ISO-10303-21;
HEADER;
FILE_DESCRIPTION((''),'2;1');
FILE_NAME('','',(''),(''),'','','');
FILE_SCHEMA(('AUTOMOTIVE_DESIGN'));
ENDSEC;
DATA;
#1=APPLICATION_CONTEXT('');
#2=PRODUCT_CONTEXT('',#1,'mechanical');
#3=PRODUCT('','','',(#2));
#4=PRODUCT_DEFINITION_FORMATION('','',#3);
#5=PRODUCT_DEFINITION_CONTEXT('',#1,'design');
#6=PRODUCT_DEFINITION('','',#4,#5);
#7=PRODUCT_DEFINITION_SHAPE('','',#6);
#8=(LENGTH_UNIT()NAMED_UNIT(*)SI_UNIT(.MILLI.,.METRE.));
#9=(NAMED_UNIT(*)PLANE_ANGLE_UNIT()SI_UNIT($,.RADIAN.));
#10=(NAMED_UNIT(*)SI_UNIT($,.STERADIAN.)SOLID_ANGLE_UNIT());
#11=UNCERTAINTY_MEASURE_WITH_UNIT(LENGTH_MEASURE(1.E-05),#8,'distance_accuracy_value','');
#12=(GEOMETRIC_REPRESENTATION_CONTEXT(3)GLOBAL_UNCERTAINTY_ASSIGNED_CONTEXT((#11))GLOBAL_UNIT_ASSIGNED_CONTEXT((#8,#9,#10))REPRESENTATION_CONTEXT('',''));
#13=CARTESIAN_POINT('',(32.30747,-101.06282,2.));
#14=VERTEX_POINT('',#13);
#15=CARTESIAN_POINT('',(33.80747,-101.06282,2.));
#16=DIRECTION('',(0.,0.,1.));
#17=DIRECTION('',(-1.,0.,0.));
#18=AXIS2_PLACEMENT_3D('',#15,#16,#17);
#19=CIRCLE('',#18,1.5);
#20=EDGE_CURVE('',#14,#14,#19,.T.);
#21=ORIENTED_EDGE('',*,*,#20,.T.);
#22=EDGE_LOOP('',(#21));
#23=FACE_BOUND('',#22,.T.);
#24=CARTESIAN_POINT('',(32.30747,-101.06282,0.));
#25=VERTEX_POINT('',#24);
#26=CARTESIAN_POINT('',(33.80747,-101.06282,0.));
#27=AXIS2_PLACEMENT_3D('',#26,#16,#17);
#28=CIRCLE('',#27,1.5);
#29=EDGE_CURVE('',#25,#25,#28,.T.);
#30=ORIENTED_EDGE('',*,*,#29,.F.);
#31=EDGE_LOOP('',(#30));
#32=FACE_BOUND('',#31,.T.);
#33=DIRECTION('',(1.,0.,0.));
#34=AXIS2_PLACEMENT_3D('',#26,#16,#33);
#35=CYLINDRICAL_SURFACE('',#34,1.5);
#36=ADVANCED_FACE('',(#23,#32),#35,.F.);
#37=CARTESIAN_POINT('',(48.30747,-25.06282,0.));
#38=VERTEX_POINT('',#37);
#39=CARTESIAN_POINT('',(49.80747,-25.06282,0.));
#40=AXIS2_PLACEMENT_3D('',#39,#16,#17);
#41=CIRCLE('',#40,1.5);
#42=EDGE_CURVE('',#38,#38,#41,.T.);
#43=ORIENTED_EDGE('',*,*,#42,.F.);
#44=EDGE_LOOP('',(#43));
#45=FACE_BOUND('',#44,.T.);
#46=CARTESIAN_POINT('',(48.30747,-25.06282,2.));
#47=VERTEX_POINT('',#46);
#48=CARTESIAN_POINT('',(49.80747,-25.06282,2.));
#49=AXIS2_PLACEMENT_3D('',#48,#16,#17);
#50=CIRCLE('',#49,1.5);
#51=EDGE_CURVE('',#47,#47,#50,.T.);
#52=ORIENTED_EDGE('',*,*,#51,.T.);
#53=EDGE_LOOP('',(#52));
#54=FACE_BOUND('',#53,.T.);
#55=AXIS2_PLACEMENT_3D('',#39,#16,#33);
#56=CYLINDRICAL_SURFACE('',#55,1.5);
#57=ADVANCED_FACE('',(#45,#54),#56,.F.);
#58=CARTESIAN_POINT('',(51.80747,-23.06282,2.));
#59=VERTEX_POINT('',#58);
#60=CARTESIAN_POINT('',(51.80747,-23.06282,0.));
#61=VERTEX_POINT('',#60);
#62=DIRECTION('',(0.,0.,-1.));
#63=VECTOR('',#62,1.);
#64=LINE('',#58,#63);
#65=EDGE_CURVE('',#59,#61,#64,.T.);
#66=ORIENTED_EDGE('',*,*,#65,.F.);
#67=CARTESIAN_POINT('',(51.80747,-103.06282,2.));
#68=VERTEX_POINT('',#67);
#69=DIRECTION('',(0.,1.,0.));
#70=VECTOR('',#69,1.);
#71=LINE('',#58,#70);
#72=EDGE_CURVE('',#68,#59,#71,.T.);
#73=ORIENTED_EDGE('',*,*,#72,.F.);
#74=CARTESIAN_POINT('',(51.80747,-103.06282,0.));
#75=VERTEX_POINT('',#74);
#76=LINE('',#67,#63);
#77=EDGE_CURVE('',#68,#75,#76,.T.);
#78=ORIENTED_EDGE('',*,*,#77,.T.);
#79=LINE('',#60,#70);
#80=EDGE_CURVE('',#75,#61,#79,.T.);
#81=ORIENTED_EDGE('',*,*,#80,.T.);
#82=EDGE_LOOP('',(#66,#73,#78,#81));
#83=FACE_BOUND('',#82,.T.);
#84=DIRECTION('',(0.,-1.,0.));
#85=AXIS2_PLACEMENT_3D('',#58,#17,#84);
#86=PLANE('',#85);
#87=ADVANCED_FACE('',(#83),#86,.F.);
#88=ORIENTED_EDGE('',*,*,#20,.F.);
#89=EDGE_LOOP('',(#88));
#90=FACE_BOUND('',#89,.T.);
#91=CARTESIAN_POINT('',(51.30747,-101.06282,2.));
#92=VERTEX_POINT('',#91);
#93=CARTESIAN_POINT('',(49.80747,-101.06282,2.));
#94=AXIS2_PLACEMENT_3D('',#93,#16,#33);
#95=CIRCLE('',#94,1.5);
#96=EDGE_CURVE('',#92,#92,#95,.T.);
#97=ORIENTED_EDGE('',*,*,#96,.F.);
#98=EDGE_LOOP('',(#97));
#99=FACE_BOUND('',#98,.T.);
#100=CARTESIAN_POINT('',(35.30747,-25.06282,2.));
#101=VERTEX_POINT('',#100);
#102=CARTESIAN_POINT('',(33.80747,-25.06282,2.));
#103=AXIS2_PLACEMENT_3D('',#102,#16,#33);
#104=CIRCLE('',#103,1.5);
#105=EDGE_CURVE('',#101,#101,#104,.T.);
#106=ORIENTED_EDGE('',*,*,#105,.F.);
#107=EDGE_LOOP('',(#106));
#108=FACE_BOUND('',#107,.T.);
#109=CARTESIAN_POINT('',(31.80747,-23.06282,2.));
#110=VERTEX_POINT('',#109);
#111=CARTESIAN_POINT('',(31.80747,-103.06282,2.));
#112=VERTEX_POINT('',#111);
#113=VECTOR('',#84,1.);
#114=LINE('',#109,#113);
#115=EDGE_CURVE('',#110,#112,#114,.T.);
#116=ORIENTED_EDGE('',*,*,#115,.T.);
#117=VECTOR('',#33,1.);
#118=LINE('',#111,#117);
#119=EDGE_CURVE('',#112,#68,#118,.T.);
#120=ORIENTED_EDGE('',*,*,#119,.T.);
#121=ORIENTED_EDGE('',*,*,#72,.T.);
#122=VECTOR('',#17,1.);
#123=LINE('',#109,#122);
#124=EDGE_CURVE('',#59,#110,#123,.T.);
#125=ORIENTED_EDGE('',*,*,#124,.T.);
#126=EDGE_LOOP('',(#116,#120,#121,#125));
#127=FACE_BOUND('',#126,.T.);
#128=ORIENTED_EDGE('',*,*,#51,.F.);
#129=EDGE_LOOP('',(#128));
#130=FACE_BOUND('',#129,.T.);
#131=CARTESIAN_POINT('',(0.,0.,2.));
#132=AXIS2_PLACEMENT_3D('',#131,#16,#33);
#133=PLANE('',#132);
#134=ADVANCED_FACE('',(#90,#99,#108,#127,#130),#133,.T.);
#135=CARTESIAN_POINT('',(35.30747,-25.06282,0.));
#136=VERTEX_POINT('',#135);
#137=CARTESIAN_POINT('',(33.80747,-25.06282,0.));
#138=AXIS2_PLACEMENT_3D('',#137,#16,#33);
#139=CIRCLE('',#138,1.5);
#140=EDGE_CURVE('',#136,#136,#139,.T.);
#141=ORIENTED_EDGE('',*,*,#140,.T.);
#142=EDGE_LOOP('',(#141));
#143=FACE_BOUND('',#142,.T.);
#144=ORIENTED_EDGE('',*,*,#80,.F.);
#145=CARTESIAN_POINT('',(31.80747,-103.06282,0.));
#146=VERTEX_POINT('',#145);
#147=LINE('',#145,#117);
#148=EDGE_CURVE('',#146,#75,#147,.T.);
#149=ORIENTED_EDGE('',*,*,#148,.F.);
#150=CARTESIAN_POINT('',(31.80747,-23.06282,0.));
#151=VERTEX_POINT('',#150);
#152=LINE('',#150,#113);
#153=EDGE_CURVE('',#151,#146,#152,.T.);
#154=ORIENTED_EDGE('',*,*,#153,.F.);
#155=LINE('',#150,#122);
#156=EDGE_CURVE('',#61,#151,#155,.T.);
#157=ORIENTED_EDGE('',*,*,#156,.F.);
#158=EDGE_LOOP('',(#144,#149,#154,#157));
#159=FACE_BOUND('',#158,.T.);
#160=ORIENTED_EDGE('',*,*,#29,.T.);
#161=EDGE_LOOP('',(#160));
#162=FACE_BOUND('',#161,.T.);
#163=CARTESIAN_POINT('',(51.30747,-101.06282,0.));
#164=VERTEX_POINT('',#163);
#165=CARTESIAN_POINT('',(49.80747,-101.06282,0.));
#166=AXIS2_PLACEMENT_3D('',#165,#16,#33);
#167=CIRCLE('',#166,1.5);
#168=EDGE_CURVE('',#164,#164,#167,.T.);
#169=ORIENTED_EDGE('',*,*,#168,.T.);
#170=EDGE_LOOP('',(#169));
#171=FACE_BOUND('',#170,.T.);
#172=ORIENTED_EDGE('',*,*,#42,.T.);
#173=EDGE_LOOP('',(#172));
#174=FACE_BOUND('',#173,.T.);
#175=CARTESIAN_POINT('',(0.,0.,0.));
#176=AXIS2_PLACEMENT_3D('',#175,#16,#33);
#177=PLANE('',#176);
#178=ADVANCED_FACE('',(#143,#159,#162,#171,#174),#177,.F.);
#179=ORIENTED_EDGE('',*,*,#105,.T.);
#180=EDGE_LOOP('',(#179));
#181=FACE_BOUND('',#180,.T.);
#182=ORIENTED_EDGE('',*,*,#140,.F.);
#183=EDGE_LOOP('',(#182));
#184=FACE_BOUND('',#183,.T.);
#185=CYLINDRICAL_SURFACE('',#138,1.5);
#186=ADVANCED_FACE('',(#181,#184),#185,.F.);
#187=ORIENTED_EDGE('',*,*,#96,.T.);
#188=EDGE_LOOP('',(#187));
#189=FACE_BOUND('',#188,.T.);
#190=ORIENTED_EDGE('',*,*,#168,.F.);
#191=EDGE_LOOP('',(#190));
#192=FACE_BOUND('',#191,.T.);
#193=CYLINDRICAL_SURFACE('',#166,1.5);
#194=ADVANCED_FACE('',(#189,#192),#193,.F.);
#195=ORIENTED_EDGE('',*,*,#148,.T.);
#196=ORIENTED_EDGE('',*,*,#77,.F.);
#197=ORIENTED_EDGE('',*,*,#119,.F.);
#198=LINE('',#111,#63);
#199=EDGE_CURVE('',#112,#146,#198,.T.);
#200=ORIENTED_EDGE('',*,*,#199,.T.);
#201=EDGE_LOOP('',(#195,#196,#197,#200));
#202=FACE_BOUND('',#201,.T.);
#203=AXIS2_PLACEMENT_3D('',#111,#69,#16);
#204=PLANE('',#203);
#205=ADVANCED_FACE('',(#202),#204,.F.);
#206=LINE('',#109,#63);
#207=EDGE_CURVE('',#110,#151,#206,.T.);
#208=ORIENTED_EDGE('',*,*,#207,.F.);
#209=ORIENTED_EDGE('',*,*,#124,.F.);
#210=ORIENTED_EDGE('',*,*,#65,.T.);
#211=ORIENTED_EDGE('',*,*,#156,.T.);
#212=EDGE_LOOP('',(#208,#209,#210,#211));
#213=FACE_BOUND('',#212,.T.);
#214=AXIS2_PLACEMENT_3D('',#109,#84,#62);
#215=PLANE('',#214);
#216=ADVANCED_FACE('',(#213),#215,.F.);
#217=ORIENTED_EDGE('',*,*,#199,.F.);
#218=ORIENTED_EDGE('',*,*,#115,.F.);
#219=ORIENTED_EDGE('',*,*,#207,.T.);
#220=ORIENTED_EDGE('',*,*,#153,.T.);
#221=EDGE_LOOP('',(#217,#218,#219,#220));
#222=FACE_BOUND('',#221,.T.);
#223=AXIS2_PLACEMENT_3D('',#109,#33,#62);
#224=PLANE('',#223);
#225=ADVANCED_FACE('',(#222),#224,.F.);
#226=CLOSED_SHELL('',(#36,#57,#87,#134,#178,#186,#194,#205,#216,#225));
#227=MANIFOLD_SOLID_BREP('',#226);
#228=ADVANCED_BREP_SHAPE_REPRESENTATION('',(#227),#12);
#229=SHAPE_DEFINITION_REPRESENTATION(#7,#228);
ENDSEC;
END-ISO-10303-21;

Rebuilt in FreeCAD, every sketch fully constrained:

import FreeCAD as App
import Part
import Sketcher
Q = App.Units.Quantity

doc = App.newDocument("Part")
params = doc.addObject("Spreadsheet::Sheet", "Params")
for row, (alias, value) in enumerate([
    ("sketch1_width", "20 mm"),
    ("sketch1_height", "80 mm"),
    ("pad1_length", "2 mm"),
    ("sketch2_diameter", "3 mm"),
    ("pocket1_length", "2 mm"),
], start=1):
    params.set(f"A{row}", alias)
    params.set(f"B{row}", "=" + value)
    params.setAlias(f"B{row}", alias)

body = doc.addObject("PartDesign::Body", "Body")

sketch1 = body.newObject("Sketcher::SketchObject", "Sketch")
sketch1.AttachmentSupport = (doc.getObject("XY_Plane"), [""])
sketch1.MapMode = "FlatFace"
sketch1.addGeometry([
    Part.LineSegment(App.Vector(31.80747, -23.06282, 0), App.Vector(31.80747, -103.06282, 0)),
    Part.LineSegment(App.Vector(31.80747, -103.06282, 0), App.Vector(51.80747, -103.06282, 0)),
    Part.LineSegment(App.Vector(51.80747, -103.06282, 0), App.Vector(51.80747, -23.06282, 0)),
    Part.LineSegment(App.Vector(51.80747, -23.06282, 0), App.Vector(31.80747, -23.06282, 0)),
], False)
sketch1.addConstraint([
    Sketcher.Constraint("Coincident", 0, 2, 1, 1),
    Sketcher.Constraint("Coincident", 1, 2, 2, 1),
    Sketcher.Constraint("Coincident", 2, 2, 3, 1),
    Sketcher.Constraint("Coincident", 3, 2, 0, 1),
    Sketcher.Constraint("Vertical", 0),
    Sketcher.Constraint("Horizontal", 1),
    Sketcher.Constraint("Vertical", 2),
    Sketcher.Constraint("Horizontal", 3),
    Sketcher.Constraint("DistanceX", 1, 1, 1, 2, Q("20 mm")),
    Sketcher.Constraint("DistanceY", 0, 2, 0, 1, Q("80 mm")),
    Sketcher.Constraint("DistanceX", -1, 1, 0, 2, Q("31.80747 mm")),
    Sketcher.Constraint("DistanceY", 0, 2, -1, 1, Q("103.06282 mm")),
])
sketch1.setExpression("Constraints[8]", "Params.sketch1_width")
sketch1.setExpression("Constraints[9]", "Params.sketch1_height")
pad1 = body.newObject("PartDesign::Pad", "Pad")
pad1.Profile = sketch1
pad1.setExpression("Length", "Params.pad1_length")

sketch2 = body.newObject("Sketcher::SketchObject", "Sketch001")
sketch2.AttachmentSupport = (doc.getObject("XY_Plane"), [""])
sketch2.MapMode = "FlatFace"
sketch2.AttachmentOffset = App.Placement(App.Vector(0, 0, 2), App.Rotation())
sketch2.addGeometry([
    Part.Circle(App.Vector(33.80747, -25.06282, 0), App.Vector(0, 0, 1), 1.5),
    Part.Circle(App.Vector(49.80747, -25.06282, 0), App.Vector(0, 0, 1), 1.5),
    Part.Circle(App.Vector(33.80747, -101.06282, 0), App.Vector(0, 0, 1), 1.5),
    Part.Circle(App.Vector(49.80747, -101.06282, 0), App.Vector(0, 0, 1), 1.5),
], False)
sketch2.addConstraint([
    Sketcher.Constraint("Equal", 0, 1),
    Sketcher.Constraint("Equal", 1, 2),
    Sketcher.Constraint("Equal", 2, 3),
    Sketcher.Constraint("Horizontal", 0, 3, 1, 3),
    Sketcher.Constraint("Horizontal", 2, 3, 3, 3),
    Sketcher.Constraint("Vertical", 0, 3, 2, 3),
    Sketcher.Constraint("Vertical", 1, 3, 3, 3),
    Sketcher.Constraint("Diameter", 0, Q("3 mm")),
    Sketcher.Constraint("DistanceX", 0, 3, 1, 3, Q("16 mm")),
    Sketcher.Constraint("DistanceY", 2, 3, 0, 3, Q("76 mm")),
    Sketcher.Constraint("DistanceX", -1, 1, 0, 3, Q("33.80747 mm")),
    Sketcher.Constraint("DistanceY", 0, 3, -1, 1, Q("25.06282 mm")),
])
sketch2.setExpression("Constraints[7]", "Params.sketch2_diameter")
pocket1 = body.newObject("PartDesign::Pocket", "Pocket")
pocket1.Profile = sketch2
pocket1.setExpression("Length", "Params.pocket1_length")

doc.recompute()
